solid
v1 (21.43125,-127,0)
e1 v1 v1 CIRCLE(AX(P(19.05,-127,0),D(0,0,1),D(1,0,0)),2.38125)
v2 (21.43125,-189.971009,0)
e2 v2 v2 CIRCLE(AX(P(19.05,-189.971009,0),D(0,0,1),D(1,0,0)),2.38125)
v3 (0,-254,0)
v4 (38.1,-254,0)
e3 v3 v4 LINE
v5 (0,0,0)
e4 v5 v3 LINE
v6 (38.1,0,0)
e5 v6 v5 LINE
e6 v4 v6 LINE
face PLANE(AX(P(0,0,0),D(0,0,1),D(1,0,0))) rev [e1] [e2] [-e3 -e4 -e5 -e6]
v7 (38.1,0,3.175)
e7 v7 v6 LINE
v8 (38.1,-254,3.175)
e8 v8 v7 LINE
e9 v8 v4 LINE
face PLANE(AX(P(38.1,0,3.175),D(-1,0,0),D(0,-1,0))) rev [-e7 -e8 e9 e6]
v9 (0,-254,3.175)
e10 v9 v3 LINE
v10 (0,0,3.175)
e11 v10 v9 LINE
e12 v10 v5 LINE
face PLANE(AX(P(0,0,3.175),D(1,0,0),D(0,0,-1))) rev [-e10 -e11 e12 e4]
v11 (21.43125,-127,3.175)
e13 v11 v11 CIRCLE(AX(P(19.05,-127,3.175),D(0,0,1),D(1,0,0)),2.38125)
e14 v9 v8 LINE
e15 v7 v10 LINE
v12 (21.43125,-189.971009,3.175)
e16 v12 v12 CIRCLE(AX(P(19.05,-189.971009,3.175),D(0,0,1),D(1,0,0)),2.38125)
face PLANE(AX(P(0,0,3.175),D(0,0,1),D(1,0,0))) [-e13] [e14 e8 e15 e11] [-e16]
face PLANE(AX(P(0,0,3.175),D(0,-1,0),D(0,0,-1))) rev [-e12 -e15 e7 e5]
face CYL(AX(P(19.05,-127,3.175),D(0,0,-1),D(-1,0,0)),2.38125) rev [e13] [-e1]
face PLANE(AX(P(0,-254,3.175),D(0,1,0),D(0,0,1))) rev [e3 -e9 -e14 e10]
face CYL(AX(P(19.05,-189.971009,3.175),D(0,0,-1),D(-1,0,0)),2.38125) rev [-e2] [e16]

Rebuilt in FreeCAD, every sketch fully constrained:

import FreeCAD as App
import Part
import Sketcher
Q = App.Units.Quantity

doc = App.newDocument("Part")
body = doc.addObject("PartDesign::Body", "Body")

sketch1 = body.newObject("Sketcher::SketchObject", "Sketch")
sketch1.AttachmentSupport = (doc.getObject("XY_Plane"), [""])
sketch1.MapMode = "FlatFace"
sketch1.addGeometry([
    Part.LineSegment(App.Vector(0, 0, 0), App.Vector(0, -254, 0)),
    Part.LineSegment(App.Vector(0, -254, 0), App.Vector(38.1, -254, 0)),
    Part.LineSegment(App.Vector(38.1, -254, 0), App.Vector(38.1, 0, 0)),
    Part.LineSegment(App.Vector(38.1, 0, 0), App.Vector(0, 0, 0)),
    Part.Circle(App.Vector(19.05, -189.971009, 0), App.Vector(0, 0, 1), 2.38125),
    Part.Circle(App.Vector(19.05, -127, 0), App.Vector(0, 0, 1), 2.38125),
], False)
sketch1.addConstraint([
    Sketcher.Constraint("Coincident", 0, 2, 1, 1),
    Sketcher.Constraint("Coincident", 1, 2, 2, 1),
    Sketcher.Constraint("Coincident", 2, 2, 3, 1),
    Sketcher.Constraint("Coincident", 3, 2, 0, 1),
    Sketcher.Constraint("Vertical", 0),
    Sketcher.Constraint("Horizontal", 1),
    Sketcher.Constraint("Vertical", 2),
    Sketcher.Constraint("Horizontal", 3),
    Sketcher.Constraint("Coincident", 3, 2, -1, 1),
    Sketcher.Constraint("Equal", 4, 5),
    Sketcher.Constraint("Vertical", 4, 3, 5, 3),
    Sketcher.Constraint("DistanceY", 0, 2, 0, 1, Q("10 in")),
    Sketcher.Constraint("Diameter", 4, Q("0.1875 in")),
    Sketcher.Constraint("DistanceX", 1, 1, 1, 2, Q("1.5 in")),
    Sketcher.Constraint("DistanceY", 5, 3, -1, 1, Q("5 in")),
    Sketcher.Constraint("DistanceX", -1, 1, 4, 3, Q("0.75 in")),
    Sketcher.Constraint("DistanceY", 4, 3, -1, 1, 189.971009),
])
pad1 = body.newObject("PartDesign::Pad", "Pad")
pad1.Profile = sketch1
pad1.Length = Q("0.125 in")

doc.recompute()
